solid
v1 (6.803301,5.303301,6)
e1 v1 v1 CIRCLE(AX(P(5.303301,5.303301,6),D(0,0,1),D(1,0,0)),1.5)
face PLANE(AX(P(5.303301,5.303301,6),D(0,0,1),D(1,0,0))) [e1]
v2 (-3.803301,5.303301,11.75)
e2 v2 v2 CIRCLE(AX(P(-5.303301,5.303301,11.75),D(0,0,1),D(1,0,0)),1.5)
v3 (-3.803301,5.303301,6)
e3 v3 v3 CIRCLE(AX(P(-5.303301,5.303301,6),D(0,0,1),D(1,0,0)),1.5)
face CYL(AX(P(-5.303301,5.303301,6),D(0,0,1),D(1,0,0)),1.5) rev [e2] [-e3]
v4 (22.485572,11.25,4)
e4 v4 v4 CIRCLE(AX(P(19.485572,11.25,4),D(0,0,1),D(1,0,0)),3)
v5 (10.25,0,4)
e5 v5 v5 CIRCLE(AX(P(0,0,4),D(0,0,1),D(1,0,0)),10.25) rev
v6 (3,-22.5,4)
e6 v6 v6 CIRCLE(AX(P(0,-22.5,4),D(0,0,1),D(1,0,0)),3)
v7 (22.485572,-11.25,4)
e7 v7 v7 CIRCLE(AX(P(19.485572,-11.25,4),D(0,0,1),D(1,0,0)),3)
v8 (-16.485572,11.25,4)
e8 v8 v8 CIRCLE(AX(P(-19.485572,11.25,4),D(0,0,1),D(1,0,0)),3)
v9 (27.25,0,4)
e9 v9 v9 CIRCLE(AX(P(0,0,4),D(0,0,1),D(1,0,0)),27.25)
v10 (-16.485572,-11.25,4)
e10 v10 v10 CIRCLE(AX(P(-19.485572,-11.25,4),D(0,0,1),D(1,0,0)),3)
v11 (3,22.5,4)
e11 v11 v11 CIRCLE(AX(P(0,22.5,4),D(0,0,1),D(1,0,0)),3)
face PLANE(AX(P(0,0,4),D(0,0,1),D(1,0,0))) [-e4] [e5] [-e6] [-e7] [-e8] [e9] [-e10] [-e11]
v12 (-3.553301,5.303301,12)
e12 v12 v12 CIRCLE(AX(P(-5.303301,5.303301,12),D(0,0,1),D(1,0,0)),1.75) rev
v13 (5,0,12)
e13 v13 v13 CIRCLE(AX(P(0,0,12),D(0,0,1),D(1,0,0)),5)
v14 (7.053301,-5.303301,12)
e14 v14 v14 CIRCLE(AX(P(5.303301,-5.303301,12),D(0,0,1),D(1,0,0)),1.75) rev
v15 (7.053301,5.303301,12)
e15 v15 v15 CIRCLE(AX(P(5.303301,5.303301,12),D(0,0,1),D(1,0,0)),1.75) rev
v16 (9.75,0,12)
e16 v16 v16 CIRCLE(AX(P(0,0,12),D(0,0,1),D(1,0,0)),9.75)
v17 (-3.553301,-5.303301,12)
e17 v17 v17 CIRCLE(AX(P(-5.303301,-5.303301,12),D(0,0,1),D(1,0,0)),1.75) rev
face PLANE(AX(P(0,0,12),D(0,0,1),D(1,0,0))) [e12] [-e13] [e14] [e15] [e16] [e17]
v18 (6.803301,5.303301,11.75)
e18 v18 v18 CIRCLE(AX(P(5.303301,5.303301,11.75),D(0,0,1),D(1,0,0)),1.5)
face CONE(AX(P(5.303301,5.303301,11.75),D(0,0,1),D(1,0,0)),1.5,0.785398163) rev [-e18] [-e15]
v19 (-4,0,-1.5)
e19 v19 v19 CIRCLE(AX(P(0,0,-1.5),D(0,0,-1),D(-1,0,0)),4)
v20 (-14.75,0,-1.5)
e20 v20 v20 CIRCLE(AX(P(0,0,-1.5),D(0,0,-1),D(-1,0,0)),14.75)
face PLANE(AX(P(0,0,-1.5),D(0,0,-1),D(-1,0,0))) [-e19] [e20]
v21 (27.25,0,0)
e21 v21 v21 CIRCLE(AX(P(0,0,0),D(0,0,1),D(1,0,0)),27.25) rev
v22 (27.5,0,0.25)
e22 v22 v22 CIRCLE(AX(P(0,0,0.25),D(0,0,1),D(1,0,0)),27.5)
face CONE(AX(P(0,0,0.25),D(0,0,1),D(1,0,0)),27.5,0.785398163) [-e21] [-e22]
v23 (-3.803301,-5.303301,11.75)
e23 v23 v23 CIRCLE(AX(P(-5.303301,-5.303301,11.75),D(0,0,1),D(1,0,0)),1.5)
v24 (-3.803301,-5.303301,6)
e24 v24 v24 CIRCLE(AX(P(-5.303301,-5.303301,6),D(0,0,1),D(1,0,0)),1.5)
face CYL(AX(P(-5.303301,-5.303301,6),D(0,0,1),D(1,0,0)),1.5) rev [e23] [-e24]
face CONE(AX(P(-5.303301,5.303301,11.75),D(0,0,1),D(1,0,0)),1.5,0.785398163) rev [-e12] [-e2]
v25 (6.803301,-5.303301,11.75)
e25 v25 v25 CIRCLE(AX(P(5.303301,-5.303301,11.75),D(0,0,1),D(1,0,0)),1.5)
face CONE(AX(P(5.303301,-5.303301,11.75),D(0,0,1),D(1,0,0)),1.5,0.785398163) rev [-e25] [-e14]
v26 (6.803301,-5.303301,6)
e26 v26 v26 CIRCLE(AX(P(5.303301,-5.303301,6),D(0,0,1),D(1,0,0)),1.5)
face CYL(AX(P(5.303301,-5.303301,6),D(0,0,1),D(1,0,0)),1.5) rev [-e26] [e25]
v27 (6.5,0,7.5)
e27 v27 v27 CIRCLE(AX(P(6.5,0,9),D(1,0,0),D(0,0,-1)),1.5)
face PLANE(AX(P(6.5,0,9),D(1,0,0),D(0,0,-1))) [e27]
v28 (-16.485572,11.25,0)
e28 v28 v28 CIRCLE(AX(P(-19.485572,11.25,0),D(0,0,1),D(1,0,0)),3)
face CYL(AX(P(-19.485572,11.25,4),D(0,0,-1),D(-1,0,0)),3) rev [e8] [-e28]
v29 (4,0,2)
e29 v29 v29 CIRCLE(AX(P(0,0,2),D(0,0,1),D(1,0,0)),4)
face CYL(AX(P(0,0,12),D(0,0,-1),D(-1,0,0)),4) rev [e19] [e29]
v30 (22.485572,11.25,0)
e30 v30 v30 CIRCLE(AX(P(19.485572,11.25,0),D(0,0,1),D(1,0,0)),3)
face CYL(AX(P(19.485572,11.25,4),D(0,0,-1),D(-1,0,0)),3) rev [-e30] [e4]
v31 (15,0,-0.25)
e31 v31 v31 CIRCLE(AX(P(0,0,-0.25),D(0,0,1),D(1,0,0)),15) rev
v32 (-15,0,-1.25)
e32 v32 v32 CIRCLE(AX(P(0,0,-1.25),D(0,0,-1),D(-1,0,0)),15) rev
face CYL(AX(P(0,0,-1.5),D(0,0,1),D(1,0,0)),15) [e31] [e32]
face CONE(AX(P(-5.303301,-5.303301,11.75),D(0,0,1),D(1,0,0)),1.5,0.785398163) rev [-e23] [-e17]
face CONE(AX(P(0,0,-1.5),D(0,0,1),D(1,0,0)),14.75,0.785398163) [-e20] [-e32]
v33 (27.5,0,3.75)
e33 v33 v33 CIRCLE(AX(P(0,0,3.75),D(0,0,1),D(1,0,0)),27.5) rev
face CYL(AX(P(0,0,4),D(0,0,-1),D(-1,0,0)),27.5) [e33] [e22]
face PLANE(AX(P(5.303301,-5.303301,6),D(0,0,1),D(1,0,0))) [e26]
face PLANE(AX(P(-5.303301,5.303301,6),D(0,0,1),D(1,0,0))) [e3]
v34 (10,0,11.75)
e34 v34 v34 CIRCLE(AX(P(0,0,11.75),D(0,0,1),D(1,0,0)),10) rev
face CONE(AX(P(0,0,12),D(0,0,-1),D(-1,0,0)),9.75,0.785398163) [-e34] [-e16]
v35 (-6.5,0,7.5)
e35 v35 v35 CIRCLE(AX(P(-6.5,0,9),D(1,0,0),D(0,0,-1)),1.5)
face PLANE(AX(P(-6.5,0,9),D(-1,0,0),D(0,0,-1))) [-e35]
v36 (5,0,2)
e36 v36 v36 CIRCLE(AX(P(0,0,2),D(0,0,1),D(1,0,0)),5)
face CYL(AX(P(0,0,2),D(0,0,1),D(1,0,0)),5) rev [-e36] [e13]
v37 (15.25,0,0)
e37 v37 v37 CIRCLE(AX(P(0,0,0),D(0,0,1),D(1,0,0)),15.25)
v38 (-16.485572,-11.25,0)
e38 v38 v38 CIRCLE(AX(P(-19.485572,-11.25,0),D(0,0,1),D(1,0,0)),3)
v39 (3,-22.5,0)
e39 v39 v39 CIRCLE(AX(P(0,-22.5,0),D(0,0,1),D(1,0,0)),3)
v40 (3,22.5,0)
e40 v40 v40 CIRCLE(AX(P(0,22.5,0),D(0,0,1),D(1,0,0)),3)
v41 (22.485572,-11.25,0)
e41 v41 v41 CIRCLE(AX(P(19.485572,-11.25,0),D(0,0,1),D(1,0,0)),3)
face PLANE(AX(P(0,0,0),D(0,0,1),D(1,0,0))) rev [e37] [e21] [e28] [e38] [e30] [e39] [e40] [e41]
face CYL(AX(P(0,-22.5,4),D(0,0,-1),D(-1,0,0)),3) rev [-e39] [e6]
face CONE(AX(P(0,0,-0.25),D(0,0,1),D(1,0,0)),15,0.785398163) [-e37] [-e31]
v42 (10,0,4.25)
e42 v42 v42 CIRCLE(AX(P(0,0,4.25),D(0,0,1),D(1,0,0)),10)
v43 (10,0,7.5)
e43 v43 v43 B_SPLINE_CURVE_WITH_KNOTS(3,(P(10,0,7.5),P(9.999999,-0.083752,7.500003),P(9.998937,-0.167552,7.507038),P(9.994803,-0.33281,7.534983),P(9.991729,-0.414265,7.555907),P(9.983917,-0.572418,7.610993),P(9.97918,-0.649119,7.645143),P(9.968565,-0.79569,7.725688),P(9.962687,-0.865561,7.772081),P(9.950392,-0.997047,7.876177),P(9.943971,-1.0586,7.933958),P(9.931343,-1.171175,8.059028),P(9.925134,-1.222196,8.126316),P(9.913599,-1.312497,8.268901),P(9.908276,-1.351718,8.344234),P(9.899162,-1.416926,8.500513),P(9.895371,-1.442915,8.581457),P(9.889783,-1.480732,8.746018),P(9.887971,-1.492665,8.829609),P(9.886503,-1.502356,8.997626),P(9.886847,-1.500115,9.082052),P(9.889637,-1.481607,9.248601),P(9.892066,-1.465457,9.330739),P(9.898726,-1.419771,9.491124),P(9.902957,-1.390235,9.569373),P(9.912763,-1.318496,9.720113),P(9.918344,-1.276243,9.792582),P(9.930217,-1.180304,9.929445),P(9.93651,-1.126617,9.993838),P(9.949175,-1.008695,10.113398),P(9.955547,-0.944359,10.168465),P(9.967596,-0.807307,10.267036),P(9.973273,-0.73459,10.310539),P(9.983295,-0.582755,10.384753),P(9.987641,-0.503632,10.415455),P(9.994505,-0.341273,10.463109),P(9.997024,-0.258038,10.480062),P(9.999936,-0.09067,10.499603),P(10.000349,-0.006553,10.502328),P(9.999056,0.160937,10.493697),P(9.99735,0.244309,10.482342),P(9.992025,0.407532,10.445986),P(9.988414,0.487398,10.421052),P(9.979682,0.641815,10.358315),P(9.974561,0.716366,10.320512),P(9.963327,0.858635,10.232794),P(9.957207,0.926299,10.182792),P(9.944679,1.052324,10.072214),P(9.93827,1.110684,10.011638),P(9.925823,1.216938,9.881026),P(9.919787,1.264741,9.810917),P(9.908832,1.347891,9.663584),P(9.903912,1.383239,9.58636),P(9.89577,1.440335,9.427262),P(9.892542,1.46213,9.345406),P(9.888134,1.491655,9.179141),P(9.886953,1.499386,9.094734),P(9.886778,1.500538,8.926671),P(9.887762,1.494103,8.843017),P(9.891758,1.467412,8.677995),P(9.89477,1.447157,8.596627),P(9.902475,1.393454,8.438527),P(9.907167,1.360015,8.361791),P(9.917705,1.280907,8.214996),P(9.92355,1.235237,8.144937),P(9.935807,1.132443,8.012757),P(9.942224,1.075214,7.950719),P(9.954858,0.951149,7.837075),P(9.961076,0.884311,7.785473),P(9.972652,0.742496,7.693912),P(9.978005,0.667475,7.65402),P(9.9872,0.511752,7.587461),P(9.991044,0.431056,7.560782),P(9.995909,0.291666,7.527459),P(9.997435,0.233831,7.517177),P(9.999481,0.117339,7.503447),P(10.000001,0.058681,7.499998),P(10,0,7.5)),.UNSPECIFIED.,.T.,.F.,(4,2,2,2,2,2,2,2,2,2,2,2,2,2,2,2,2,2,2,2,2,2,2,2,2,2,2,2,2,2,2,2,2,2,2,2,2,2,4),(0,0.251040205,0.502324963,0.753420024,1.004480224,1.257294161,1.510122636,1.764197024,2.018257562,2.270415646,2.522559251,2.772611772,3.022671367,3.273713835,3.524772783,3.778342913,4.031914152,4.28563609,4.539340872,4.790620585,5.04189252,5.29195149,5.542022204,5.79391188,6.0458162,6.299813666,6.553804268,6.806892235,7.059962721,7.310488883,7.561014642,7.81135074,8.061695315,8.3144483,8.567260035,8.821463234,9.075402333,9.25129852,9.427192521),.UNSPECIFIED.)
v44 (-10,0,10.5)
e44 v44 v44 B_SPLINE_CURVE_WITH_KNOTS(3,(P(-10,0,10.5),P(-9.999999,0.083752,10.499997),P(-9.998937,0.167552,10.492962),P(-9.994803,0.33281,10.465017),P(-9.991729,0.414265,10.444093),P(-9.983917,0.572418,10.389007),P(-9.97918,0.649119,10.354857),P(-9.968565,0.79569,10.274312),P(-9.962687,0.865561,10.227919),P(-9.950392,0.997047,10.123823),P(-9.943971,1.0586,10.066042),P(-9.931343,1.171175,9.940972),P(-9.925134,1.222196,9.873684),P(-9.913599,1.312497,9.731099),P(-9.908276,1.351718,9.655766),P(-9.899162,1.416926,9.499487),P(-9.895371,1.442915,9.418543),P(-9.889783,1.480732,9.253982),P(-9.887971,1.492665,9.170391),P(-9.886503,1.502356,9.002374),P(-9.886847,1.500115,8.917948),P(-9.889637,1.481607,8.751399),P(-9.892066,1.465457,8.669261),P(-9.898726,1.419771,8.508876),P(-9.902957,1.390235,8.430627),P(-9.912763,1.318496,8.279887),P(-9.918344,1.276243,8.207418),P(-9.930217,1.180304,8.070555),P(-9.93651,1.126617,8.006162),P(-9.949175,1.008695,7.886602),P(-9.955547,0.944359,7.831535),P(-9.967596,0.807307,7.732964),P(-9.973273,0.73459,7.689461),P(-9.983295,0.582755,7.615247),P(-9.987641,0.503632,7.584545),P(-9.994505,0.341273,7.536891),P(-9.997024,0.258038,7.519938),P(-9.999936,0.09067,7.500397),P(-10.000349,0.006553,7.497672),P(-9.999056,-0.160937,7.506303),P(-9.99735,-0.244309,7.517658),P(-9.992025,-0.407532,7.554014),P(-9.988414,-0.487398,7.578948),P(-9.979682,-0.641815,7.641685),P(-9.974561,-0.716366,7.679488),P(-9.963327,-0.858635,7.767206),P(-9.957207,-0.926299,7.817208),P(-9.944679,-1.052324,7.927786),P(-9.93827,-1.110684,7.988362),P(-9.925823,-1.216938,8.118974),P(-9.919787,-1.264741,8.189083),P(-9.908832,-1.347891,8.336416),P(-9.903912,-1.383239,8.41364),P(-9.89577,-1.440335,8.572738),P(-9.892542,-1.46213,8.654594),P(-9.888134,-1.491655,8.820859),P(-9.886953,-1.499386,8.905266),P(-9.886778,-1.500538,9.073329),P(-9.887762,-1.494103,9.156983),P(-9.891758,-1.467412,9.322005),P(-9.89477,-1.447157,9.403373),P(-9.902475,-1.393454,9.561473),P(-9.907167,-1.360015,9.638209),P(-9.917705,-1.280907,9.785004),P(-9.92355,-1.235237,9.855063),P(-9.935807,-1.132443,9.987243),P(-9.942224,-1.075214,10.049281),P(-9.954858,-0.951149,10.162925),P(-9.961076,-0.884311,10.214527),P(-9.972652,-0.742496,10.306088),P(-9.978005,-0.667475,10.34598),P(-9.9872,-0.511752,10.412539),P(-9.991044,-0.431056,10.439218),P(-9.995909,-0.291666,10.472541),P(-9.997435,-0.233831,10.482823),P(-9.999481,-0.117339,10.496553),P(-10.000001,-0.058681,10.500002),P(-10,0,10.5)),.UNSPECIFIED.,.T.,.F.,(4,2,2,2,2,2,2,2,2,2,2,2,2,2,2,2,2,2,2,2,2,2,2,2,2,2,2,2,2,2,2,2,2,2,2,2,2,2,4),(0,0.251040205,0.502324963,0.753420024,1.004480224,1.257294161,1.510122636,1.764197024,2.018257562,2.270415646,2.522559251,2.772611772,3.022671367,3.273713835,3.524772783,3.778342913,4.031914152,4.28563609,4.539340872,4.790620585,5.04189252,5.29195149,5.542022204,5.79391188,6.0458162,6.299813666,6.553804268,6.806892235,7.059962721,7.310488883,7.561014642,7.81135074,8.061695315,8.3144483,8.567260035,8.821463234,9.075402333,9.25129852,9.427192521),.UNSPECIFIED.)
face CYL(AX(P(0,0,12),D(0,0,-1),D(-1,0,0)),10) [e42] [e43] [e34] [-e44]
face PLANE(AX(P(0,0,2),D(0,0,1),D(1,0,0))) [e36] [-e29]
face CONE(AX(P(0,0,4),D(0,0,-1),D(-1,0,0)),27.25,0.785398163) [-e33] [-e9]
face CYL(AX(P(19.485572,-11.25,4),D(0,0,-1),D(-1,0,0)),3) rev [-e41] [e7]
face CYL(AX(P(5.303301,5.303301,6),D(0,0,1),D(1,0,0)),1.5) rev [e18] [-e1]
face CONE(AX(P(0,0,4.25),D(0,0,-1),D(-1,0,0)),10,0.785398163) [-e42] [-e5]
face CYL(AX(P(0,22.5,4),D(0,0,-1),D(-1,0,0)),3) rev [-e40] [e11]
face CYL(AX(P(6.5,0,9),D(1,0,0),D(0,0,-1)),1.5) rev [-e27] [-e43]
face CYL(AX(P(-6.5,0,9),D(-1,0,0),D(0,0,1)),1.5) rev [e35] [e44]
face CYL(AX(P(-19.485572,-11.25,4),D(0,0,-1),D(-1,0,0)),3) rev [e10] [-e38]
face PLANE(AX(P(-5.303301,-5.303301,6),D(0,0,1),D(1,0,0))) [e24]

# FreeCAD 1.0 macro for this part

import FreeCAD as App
import Part
import Sketcher
from FreeCAD import Vector


def edges_at(feature, points):
    """Names of the edges that pass closest to the given points."""
    edges = feature.Shape.Edges
    near = lambda p: min(range(len(edges)), key=lambda i: edges[i].distToShape(Part.Vertex(*p))[0])
    return sorted({f"Edge{near(p) + 1}" for p in points})

doc = App.newDocument("Part")
body = doc.addObject("PartDesign::Body", "Body")

# Sketch on XY plane
sketch1 = doc.addObject("Sketcher::SketchObject", "Sketch")
body.addObject(sketch1)
sketch1.AttachmentSupport = (doc.XY_Plane, [""])
sketch1.MapMode = "FlatFace"
sketch1.addGeometry([
    Part.Circle(Vector(0, 0, 0), Vector(0, 0, 1), 27.5),  # 0
    Part.Circle(Vector(-19.5, -11.2, 0), Vector(0, 0, 1), 3),  # 1
    Part.Circle(Vector(0, -22.5, 0), Vector(0, 0, 1), 3),  # 2
    Part.Circle(Vector(19.5, -11.2, 0), Vector(0, 0, 1), 3),  # 3
    Part.Circle(Vector(-19.5, 11.2, 0), Vector(0, 0, 1), 3),  # 4
    Part.Circle(Vector(19.5, 11.2, 0), Vector(0, 0, 1), 3),  # 5
    Part.Circle(Vector(0, 22.5, 0), Vector(0, 0, 1), 3),  # 6
], False)
sketch1.addConstraint([
    Sketcher.Constraint("Coincident", 0, 3, -1, 1),
    Sketcher.Constraint("Equal", 1, 2),
    Sketcher.Constraint("Equal", 2, 3),
    Sketcher.Constraint("Equal", 3, 4),
    Sketcher.Constraint("Equal", 4, 5),
    Sketcher.Constraint("Equal", 5, 6),
    Sketcher.Constraint("Symmetric", 3, 3, 4, 3, -1, 1),
    Sketcher.Constraint("Symmetric", 1, 3, 5, 3, -1, 1),
    Sketcher.Constraint("Symmetric", 2, 3, 6, 3, -1, 1),
    Sketcher.Constraint("Symmetric", 1, 3, 3, 3, -2),
    Sketcher.Constraint("PointOnObject", 2, 3, -2),
    Sketcher.Constraint("Diameter", 0, 55.0),
    Sketcher.Constraint("Diameter", 1, 6.0),
    Sketcher.Constraint("DistanceY", 2, 3, -1, 1, 22.5),
    Sketcher.Constraint("DistanceY", 1, 3, 4, 3, 22.5),
    Sketcher.Constraint("DistanceX", 1, 3, -1, 1, 19.485572),
])
pad1 = doc.addObject("PartDesign::Pad", "Pad")
body.addObject(pad1)
pad1.Profile = sketch1
pad1.Length = 4

# Sketch on XY plane
sketch2 = doc.addObject("Sketcher::SketchObject", "Sketch001")
body.addObject(sketch2)
sketch2.AttachmentSupport = (doc.XY_Plane, [""])
sketch2.MapMode = "FlatFace"
sketch2.AttachmentOffset = App.Placement(Vector(0, 0, 4), App.Rotation())
sketch2.addGeometry(Part.Circle(Vector(0, 0, 0), Vector(0, 0, 1), 10), False)
sketch2.addConstraint([
    Sketcher.Constraint("Coincident", 0, 3, -1, 1),
    Sketcher.Constraint("Diameter", 0, 20.0),
])
pad2 = doc.addObject("PartDesign::Pad", "Pad001")
body.addObject(pad2)
pad2.Profile = sketch2
pad2.Length = 8

# Sketch on XY plane
sketch3 = doc.addObject("Sketcher::SketchObject", "Sketch002")
body.addObject(sketch3)
sketch3.AttachmentSupport = (doc.XY_Plane, [""])
sketch3.MapMode = "FlatFace"
sketch3.addGeometry(Part.Circle(Vector(0, 0, 0), Vector(0, 0, 1), 15), False)
sketch3.addConstraint([
    Sketcher.Constraint("Coincident", 0, 3, -1, 1),
    Sketcher.Constraint("Diameter", 0, 30.0),
])
pad3 = doc.addObject("PartDesign::Pad", "Pad002")
body.addObject(pad3)
pad3.Profile = sketch3
pad3.Length = 1.5
pad3.Reversed = True

# Sketch on XY plane
sketch4 = doc.addObject("Sketcher::SketchObject", "Sketch003")
body.addObject(sketch4)
sketch4.AttachmentSupport = (doc.XY_Plane, [""])
sketch4.MapMode = "FlatFace"
sketch4.AttachmentOffset = App.Placement(Vector(0, 0, 12), App.Rotation())
sketch4.addGeometry([
    Part.Circle(Vector(-5.3, 5.3, 0), Vector(0, 0, 1), 1.5),
    Part.Circle(Vector(5.3, 5.3, 0), Vector(0, 0, 1), 1.5),
    Part.Circle(Vector(5.3, -5.3, 0), Vector(0, 0, 1), 1.5),
    Part.Circle(Vector(-5.3, -5.3, 0), Vector(0, 0, 1), 1.5),
], False)
sketch4.addConstraint([
    Sketcher.Constraint("Equal", 0, 1),
    Sketcher.Constraint("Equal", 1, 2),
    Sketcher.Constraint("Equal", 2, 3),
    Sketcher.Constraint("Symmetric", 0, 3, 2, 3, -1, 1),
    Sketcher.Constraint("Symmetric", 1, 3, 3, 3, -1, 1),
    Sketcher.Constraint("Symmetric", 0, 3, 1, 3, -2),
    Sketcher.Constraint("Diameter", 0, 3.0),
    Sketcher.Constraint("DistanceX", 0, 3, -1, 1, 5.303301),
    Sketcher.Constraint("DistanceY", -1, 1, 0, 3, 5.303301),
])
pocket1 = doc.addObject("PartDesign::Pocket", "Pocket")
body.addObject(pocket1)
pocket1.Profile = sketch4
pocket1.Length = 6

# Sketch on YZ plane
sketch5 = doc.addObject("Sketcher::SketchObject", "Sketch004")
body.addObject(sketch5)
sketch5.AttachmentSupport = (doc.YZ_Plane, [""])
sketch5.MapMode = "FlatFace"
sketch5.AttachmentOffset = App.Placement(Vector(0, 0, 10), App.Rotation())
sketch5.addGeometry(Part.Circle(Vector(0, 9, 0), Vector(0, 0, 1), 1.5), False)
sketch5.addConstraint([
    Sketcher.Constraint("PointOnObject", 0, 3, -2),
    Sketcher.Constraint("Diameter", 0, 3.0),
    Sketcher.Constraint("DistanceY", -1, 1, 0, 3, 9.0),
])
pocket2 = doc.addObject("PartDesign::Pocket", "Pocket001")
body.addObject(pocket2)
pocket2.Profile = sketch5
pocket2.Length = 3.5
doc.recompute()

mirrored = doc.addObject("PartDesign::Mirrored", "Mirrored")
body.addObject(mirrored)
mirrored.Originals = [pocket2]
mirrored.MirrorPlane = (doc.YZ_Plane, [""])
body.Tip = mirrored

# Sketch on XY plane
sketch6 = doc.addObject("Sketcher::SketchObject", "Sketch005")
body.addObject(sketch6)
sketch6.AttachmentSupport = (doc.XY_Plane, [""])
sketch6.MapMode = "FlatFace"
sketch6.AttachmentOffset = App.Placement(Vector(0, 0, 12), App.Rotation())
sketch6.addGeometry(Part.Circle(Vector(0, 0, 0), Vector(0, 0, 1), 5), False)
sketch6.addConstraint([
    Sketcher.Constraint("Coincident", 0, 3, -1, 1),
    Sketcher.Constraint("Diameter", 0, 10.0),
])
pocket3 = doc.addObject("PartDesign::Pocket", "Pocket002")
body.addObject(pocket3)
pocket3.Profile = sketch6
pocket3.Length = 10

# Sketch on XY plane
sketch7 = doc.addObject("Sketcher::SketchObject", "Sketch006")
body.addObject(sketch7)
sketch7.AttachmentSupport = (doc.XY_Plane, [""])
sketch7.MapMode = "FlatFace"
sketch7.AttachmentOffset = App.Placement(Vector(0, 0, -1.5), App.Rotation())
sketch7.addGeometry(Part.Circle(Vector(0, 0, 0), Vector(0, 0, 1), 4), False)
sketch7.addConstraint([
    Sketcher.Constraint("Coincident", 0, 3, -1, 1),
    Sketcher.Constraint("Diameter", 0, 8.0),
])
pocket4 = doc.addObject("PartDesign::Pocket", "Pocket003")
body.addObject(pocket4)
pocket4.Profile = sketch7
pocket4.Type = "ThroughAll"
pocket4.Reversed = True
doc.recompute()

chamfer = doc.addObject("PartDesign::Chamfer", "Chamfer")
body.addObject(chamfer)
chamfer.Base = (pocket4, edges_at(pocket4, [
    (-6.803, -5.303, 12),
    (3.803, -5.303, 12),
    (3.803, 5.303, 12),
    (-6.803, 5.303, 12),
]))
chamfer.Size = 0.25
doc.recompute()

chamfer2 = doc.addObject("PartDesign::Chamfer", "Chamfer001")
body.addObject(chamfer2)
chamfer2.Base = (chamfer, edges_at(chamfer, [
    (-27.5, 0, 0),
    (-10, 0, 4),
    (-10, 0, 12),
    (-15, 0, 0),
    (-15, 0, -1.5),
    (-27.5, 0, 4),
]))
chamfer2.Size = 0.25

doc.recompute()
